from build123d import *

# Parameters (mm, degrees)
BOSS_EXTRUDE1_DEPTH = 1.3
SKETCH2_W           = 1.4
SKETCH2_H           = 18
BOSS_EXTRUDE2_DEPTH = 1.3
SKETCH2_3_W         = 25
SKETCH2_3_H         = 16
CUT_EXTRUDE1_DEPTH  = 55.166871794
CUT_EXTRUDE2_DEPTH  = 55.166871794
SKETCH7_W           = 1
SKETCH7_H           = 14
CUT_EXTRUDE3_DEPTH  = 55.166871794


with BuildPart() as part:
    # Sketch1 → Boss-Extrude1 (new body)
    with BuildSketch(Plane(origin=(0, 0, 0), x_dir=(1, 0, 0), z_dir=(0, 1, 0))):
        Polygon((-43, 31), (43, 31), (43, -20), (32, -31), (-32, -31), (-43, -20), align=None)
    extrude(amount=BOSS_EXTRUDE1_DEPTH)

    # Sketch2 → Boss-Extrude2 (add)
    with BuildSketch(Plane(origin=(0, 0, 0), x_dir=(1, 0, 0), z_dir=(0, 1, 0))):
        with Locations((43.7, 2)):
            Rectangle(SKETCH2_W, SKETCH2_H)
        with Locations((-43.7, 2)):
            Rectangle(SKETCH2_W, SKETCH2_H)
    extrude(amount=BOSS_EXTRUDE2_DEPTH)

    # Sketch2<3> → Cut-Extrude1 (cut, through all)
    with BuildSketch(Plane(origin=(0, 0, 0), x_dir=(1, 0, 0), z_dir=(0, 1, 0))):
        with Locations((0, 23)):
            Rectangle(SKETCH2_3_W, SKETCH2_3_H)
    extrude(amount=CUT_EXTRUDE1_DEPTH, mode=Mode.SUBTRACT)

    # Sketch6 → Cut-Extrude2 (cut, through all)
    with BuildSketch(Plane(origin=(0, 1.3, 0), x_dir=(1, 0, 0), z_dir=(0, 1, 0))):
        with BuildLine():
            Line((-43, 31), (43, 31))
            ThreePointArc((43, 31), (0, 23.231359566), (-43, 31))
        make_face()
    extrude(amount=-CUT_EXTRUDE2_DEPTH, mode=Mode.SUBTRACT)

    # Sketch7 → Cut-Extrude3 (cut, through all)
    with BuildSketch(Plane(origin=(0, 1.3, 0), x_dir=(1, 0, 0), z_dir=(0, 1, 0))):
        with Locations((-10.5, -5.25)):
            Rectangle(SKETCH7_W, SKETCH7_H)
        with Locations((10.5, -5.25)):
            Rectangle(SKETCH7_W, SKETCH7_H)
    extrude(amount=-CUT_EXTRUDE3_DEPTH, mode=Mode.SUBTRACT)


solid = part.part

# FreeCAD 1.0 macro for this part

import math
import FreeCAD as App
import Part
import Sketcher

V = App.Vector

doc = App.newDocument("Part")
params = doc.addObject("Spreadsheet::Sheet", "Params")
for row, (alias, value) in enumerate([
    ("sketch1_width", "86 mm"),
    ("sketch1_width2", "64 mm"),
    ("sketch1_height", "51 mm"),
    ("pad1_length", "1.3 mm"),
    ("sketch2_height", "18 mm"),
    ("sketch2_width", "1.4 mm"),
    ("pad2_length", "1.3 mm"),
    ("sketch3_width", "25 mm"),
    ("sketch3_height", "16 mm"),
    ("sketch4_width", "86 mm"),
    ("sketch5_width", "1 mm"),
    ("sketch5_height", "14 mm"),
], start=1):
    params.set(f"A{row}", alias)
    params.set(f"B{row}", "=" + value)
    params.setAlias(f"B{row}", alias)

body = doc.addObject("PartDesign::Body", "Body")

# Sketch on XZ plane
sketch1 = body.newObject("Sketcher::SketchObject", "Sketch")
sketch1.AttachmentSupport = (doc.getObject("XZ_Plane"), [""])
sketch1.MapMode = "FlatFace"
sketch1.addGeometry(Part.LineSegment(V(43, -31, 0), V(-43, -31, 0)), False)
sketch1.addGeometry(Part.LineSegment(V(-43, -31, 0), V(-43, 20, 0)), False)
sketch1.addGeometry(Part.LineSegment(V(-43, 20, 0), V(-32, 31, 0)), False)
sketch1.addGeometry(Part.LineSegment(V(-32, 31, 0), V(32, 31, 0)), False)
sketch1.addGeometry(Part.LineSegment(V(32, 31, 0), V(43, 20, 0)), False)
sketch1.addGeometry(Part.LineSegment(V(43, 20, 0), V(43, -31, 0)), False)
sketch1.addConstraint(Sketcher.Constraint("Coincident", 0, 2, 1, 1))
sketch1.addConstraint(Sketcher.Constraint("Coincident", 1, 2, 2, 1))
sketch1.addConstraint(Sketcher.Constraint("Coincident", 2, 2, 3, 1))
sketch1.addConstraint(Sketcher.Constraint("Coincident", 3, 2, 4, 1))
sketch1.addConstraint(Sketcher.Constraint("Coincident", 4, 2, 5, 1))
sketch1.addConstraint(Sketcher.Constraint("Coincident", 5, 2, 0, 1))
sketch1.addConstraint(Sketcher.Constraint("Horizontal", 0))
sketch1.addConstraint(Sketcher.Constraint("Vertical", 1))
sketch1.addConstraint(Sketcher.Constraint("Horizontal", 3))
sketch1.addConstraint(Sketcher.Constraint("Vertical", 5))
sketch1.addConstraint(Sketcher.Constraint("Symmetric", 1, 2, 4, 2, -2))
sketch1.addConstraint(Sketcher.Constraint("Perpendicular", 2, 4))
sketch1.addConstraint(Sketcher.Constraint("Equal", 2, 4))
sketch1.addConstraint(Sketcher.Constraint("DistanceX", 0, 2, 0, 1, 86.0))
sketch1.addConstraint(Sketcher.Constraint("DistanceX", 3, 1, 3, 2, 64.0))
sketch1.addConstraint(Sketcher.Constraint("DistanceY", 1, 1, 1, 2, 51.0))
sketch1.addConstraint(Sketcher.Constraint("DistanceY", 0, 2, -1, 1, 31.0))
sketch1.setExpression("Constraints[13]", "Params.sketch1_width")
sketch1.setExpression("Constraints[14]", "Params.sketch1_width2")
sketch1.setExpression("Constraints[15]", "Params.sketch1_height")
pad1 = body.newObject("PartDesign::Pad", "Pad")
pad1.Profile = sketch1
pad1.setExpression("Length", "Params.pad1_length")
pad1.Reversed = True

# Sketch on XZ plane
sketch2 = body.newObject("Sketcher::SketchObject", "Sketch001")
sketch2.AttachmentSupport = (doc.getObject("XZ_Plane"), [""])
sketch2.MapMode = "FlatFace"
sketch2.addGeometry(Part.LineSegment(V(43, -11, 0), V(43, 7, 0)), False)
sketch2.addGeometry(Part.LineSegment(V(43, 7, 0), V(44.4, 7, 0)), False)
sketch2.addGeometry(Part.LineSegment(V(44.4, 7, 0), V(44.4, -11, 0)), False)
sketch2.addGeometry(Part.LineSegment(V(44.4, -11, 0), V(43, -11, 0)), False)
sketch2.addGeometry(Part.LineSegment(V(-44.4, -11, 0), V(-44.4, 7, 0)), False)
sketch2.addGeometry(Part.LineSegment(V(-44.4, 7, 0), V(-43, 7, 0)), False)
sketch2.addGeometry(Part.LineSegment(V(-43, 7, 0), V(-43, -11, 0)), False)
sketch2.addGeometry(Part.LineSegment(V(-43, -11, 0), V(-44.4, -11, 0)), False)
sketch2.addConstraint(Sketcher.Constraint("Coincident", 0, 2, 1, 1))
sketch2.addConstraint(Sketcher.Constraint("Coincident", 1, 2, 2, 1))
sketch2.addConstraint(Sketcher.Constraint("Coincident", 2, 2, 3, 1))
sketch2.addConstraint(Sketcher.Constraint("Coincident", 3, 2, 0, 1))
sketch2.addConstraint(Sketcher.Constraint("Coincident", 4, 2, 5, 1))
sketch2.addConstraint(Sketcher.Constraint("Coincident", 5, 2, 6, 1))
sketch2.addConstraint(Sketcher.Constraint("Coincident", 6, 2, 7, 1))
sketch2.addConstraint(Sketcher.Constraint("Coincident", 7, 2, 4, 1))
sketch2.addConstraint(Sketcher.Constraint("Vertical", 0))
sketch2.addConstraint(Sketcher.Constraint("Horizontal", 1))
sketch2.addConstraint(Sketcher.Constraint("Vertical", 2))
sketch2.addConstraint(Sketcher.Constraint("Horizontal", 3))
sketch2.addConstraint(Sketcher.Constraint("Vertical", 4))
sketch2.addConstraint(Sketcher.Constraint("Horizontal", 5))
sketch2.addConstraint(Sketcher.Constraint("Vertical", 6))
sketch2.addConstraint(Sketcher.Constraint("Horizontal", 7))
sketch2.addConstraint(Sketcher.Constraint("Symmetric", 1, 2, 4, 2, -2))
sketch2.addConstraint(Sketcher.Constraint("Symmetric", 3, 2, 6, 2, -2))
sketch2.addConstraint(Sketcher.Constraint("DistanceY", 0, 1, 0, 2, 18.0))
sketch2.addConstraint(Sketcher.Constraint("DistanceX", 1, 1, 1, 2, 1.4))
sketch2.addConstraint(Sketcher.Constraint("DistanceX", -1, 1, 0, 2, 43.0))
sketch2.addConstraint(Sketcher.Constraint("DistanceY", -1, 1, 0, 2, 7.0))
sketch2.setExpression("Constraints[18]", "Params.sketch2_height")
sketch2.setExpression("Constraints[19]", "Params.sketch2_width")
pad2 = body.newObject("PartDesign::Pad", "Pad001")
pad2.Profile = sketch2
pad2.setExpression("Length", "Params.pad2_length")
pad2.Reversed = True

# Sketch on XZ plane
sketch3 = body.newObject("Sketcher::SketchObject", "Sketch002")
sketch3.AttachmentSupport = (doc.getObject("XZ_Plane"), [""])
sketch3.MapMode = "FlatFace"
sketch3.addGeometry(Part.LineSegment(V(-12, -31, 0), V(-12, -15, 0)), False)
sketch3.addGeometry(Part.LineSegment(V(-12, -15, 0), V(12, -15, 0)), False)
sketch3.addGeometry(Part.LineSegment(V(12, -15, 0), V(12, -31, 0)), False)
sketch3.addGeometry(Part.LineSegment(V(12, -31, 0), V(-12, -31, 0)), False)
sketch3.addConstraint(Sketcher.Constraint("Coincident", 0, 2, 1, 1))
sketch3.addConstraint(Sketcher.Constraint("Coincident", 1, 2, 2, 1))
sketch3.addConstraint(Sketcher.Constraint("Coincident", 2, 2, 3, 1))
sketch3.addConstraint(Sketcher.Constraint("Coincident", 3, 2, 0, 1))
sketch3.addConstraint(Sketcher.Constraint("Vertical", 0))
sketch3.addConstraint(Sketcher.Constraint("Horizontal", 1))
sketch3.addConstraint(Sketcher.Constraint("Vertical", 2))
sketch3.addConstraint(Sketcher.Constraint("Horizontal", 3))
sketch3.addConstraint(Sketcher.Constraint("DistanceX", 1, 1, 1, 2, 25.0))
sketch3.addConstraint(Sketcher.Constraint("DistanceY", 0, 1, 0, 2, 16.0))
sketch3.addConstraint(Sketcher.Constraint("DistanceY", 0, 2, -1, 1, 15.0))
sketch3.addConstraint(Sketcher.Constraint("DistanceX", 0, 2, -1, 1, 12.5))
sketch3.setExpression("Constraints[8]", "Params.sketch3_width")
sketch3.setExpression("Constraints[9]", "Params.sketch3_height")
pocket1 = body.newObject("PartDesign::Pocket", "Pocket")
pocket1.Profile = sketch3
pocket1.Type = "ThroughAll"

# Sketch on XZ plane
sketch4 = body.newObject("Sketcher::SketchObject", "Sketch003")
sketch4.AttachmentSupport = (doc.getObject("XZ_Plane"), [""])
sketch4.MapMode = "FlatFace"
sketch4.AttachmentOffset = App.Placement(V(0, 0, -1.3), App.Rotation())
sketch4.addGeometry(Part.LineSegment(V(43, -31, 0), V(-43, -31, 0)), False)
sketch4.addGeometry(Part.ArcOfCircle(Part.Circle(V(0, -146, 0), V(0, 0, 1), 123), math.radians(70), math.radians(110)), False)
sketch4.addConstraint(Sketcher.Constraint("Coincident", 0, 1, 1, 1))
sketch4.addConstraint(Sketcher.Constraint("Coincident", 1, 2, 0, 2))
sketch4.addConstraint(Sketcher.Constraint("Horizontal", 0))
sketch4.addConstraint(Sketcher.Constraint("PointOnObject", 1, 3, -2))
sketch4.addConstraint(Sketcher.Constraint("DistanceX", 0, 2, 0, 1, 86.0))
sketch4.addConstraint(Sketcher.Constraint("DistanceY", 0, 1, -1, 1, 31.0))
sketch4.addConstraint(Sketcher.Constraint("Radius", 1, 122.888412))
sketch4.setExpression("Constraints[4]", "Params.sketch4_width")
pocket2 = body.newObject("PartDesign::Pocket", "Pocket001")
pocket2.Profile = sketch4
pocket2.Type = "ThroughAll"
pocket2.Reversed = True

# Sketch on XZ plane
sketch5 = body.newObject("Sketcher::SketchObject", "Sketch004")
sketch5.AttachmentSupport = (doc.getObject("XZ_Plane"), [""])
sketch5.MapMode = "FlatFace"
sketch5.AttachmentOffset = App.Placement(V(0, 0, -1.3), App.Rotation())
sketch5.addGeometry(Part.LineSegment(V(-11, -1.8, 0), V(-11, 12.2, 0)), False)
sketch5.addGeometry(Part.LineSegment(V(-11, 12.2, 0), V(-10, 12.2, 0)), False)
sketch5.addGeometry(Part.LineSegment(V(-10, 12.2, 0), V(-10, -1.8, 0)), False)
sketch5.addGeometry(Part.LineSegment(V(-10, -1.8, 0), V(-11, -1.8, 0)), False)
sketch5.addGeometry(Part.LineSegment(V(10, -1.8, 0), V(10, 12.2, 0)), False)
sketch5.addGeometry(Part.LineSegment(V(10, 12.2, 0), V(11, 12.2, 0)), False)
sketch5.addGeometry(Part.LineSegment(V(11, 12.2, 0), V(11, -1.8, 0)), False)
sketch5.addGeometry(Part.LineSegment(V(11, -1.8, 0), V(10, -1.8, 0)), False)
sketch5.addConstraint(Sketcher.Constraint("Coincident", 0, 2, 1, 1))
sketch5.addConstraint(Sketcher.Constraint("Coincident", 1, 2, 2, 1))
sketch5.addConstraint(Sketcher.Constraint("Coincident", 2, 2, 3, 1))
sketch5.addConstraint(Sketcher.Constraint("Coincident", 3, 2, 0, 1))
sketch5.addConstraint(Sketcher.Constraint("Coincident", 4, 2, 5, 1))
sketch5.addConstraint(Sketcher.Constraint("Coincident", 5, 2, 6, 1))
sketch5.addConstraint(Sketcher.Constraint("Coincident", 6, 2, 7, 1))
sketch5.addConstraint(Sketcher.Constraint("Coincident", 7, 2, 4, 1))
sketch5.addConstraint(Sketcher.Constraint("Vertical", 0))
sketch5.addConstraint(Sketcher.Constraint("Horizontal", 1))
sketch5.addConstraint(Sketcher.Constraint("Vertical", 2))
sketch5.addConstraint(Sketcher.Constraint("Horizontal", 3))
sketch5.addConstraint(Sketcher.Constraint("Vertical", 4))
sketch5.addConstraint(Sketcher.Constraint("Horizontal", 5))
sketch5.addConstraint(Sketcher.Constraint("Vertical", 6))
sketch5.addConstraint(Sketcher.Constraint("Horizontal", 7))
sketch5.addConstraint(Sketcher.Constraint("Symmetric", 1, 2, 4, 2, -2))
sketch5.addConstraint(Sketcher.Constraint("Symmetric", 3, 2, 6, 2, -2))
sketch5.addConstraint(Sketcher.Constraint("DistanceX", 1, 1, 1, 2, 1.0))
sketch5.addConstraint(Sketcher.Constraint("DistanceY", 0, 1, 0, 2, 14.0))
sketch5.addConstraint(Sketcher.Constraint("DistanceX", 0, 2, -1, 1, 11.0))
sketch5.addConstraint(Sketcher.Constraint("DistanceY", -1, 1, 0, 2, 12.25))
sketch5.setExpression("Constraints[18]", "Params.sketch5_width")
sketch5.setExpression("Constraints[19]", "Params.sketch5_height")
pocket3 = body.newObject("PartDesign::Pocket", "Pocket002")
pocket3.Profile = sketch5
pocket3.Type = "ThroughAll"
pocket3.Reversed = True

doc.recompute()
